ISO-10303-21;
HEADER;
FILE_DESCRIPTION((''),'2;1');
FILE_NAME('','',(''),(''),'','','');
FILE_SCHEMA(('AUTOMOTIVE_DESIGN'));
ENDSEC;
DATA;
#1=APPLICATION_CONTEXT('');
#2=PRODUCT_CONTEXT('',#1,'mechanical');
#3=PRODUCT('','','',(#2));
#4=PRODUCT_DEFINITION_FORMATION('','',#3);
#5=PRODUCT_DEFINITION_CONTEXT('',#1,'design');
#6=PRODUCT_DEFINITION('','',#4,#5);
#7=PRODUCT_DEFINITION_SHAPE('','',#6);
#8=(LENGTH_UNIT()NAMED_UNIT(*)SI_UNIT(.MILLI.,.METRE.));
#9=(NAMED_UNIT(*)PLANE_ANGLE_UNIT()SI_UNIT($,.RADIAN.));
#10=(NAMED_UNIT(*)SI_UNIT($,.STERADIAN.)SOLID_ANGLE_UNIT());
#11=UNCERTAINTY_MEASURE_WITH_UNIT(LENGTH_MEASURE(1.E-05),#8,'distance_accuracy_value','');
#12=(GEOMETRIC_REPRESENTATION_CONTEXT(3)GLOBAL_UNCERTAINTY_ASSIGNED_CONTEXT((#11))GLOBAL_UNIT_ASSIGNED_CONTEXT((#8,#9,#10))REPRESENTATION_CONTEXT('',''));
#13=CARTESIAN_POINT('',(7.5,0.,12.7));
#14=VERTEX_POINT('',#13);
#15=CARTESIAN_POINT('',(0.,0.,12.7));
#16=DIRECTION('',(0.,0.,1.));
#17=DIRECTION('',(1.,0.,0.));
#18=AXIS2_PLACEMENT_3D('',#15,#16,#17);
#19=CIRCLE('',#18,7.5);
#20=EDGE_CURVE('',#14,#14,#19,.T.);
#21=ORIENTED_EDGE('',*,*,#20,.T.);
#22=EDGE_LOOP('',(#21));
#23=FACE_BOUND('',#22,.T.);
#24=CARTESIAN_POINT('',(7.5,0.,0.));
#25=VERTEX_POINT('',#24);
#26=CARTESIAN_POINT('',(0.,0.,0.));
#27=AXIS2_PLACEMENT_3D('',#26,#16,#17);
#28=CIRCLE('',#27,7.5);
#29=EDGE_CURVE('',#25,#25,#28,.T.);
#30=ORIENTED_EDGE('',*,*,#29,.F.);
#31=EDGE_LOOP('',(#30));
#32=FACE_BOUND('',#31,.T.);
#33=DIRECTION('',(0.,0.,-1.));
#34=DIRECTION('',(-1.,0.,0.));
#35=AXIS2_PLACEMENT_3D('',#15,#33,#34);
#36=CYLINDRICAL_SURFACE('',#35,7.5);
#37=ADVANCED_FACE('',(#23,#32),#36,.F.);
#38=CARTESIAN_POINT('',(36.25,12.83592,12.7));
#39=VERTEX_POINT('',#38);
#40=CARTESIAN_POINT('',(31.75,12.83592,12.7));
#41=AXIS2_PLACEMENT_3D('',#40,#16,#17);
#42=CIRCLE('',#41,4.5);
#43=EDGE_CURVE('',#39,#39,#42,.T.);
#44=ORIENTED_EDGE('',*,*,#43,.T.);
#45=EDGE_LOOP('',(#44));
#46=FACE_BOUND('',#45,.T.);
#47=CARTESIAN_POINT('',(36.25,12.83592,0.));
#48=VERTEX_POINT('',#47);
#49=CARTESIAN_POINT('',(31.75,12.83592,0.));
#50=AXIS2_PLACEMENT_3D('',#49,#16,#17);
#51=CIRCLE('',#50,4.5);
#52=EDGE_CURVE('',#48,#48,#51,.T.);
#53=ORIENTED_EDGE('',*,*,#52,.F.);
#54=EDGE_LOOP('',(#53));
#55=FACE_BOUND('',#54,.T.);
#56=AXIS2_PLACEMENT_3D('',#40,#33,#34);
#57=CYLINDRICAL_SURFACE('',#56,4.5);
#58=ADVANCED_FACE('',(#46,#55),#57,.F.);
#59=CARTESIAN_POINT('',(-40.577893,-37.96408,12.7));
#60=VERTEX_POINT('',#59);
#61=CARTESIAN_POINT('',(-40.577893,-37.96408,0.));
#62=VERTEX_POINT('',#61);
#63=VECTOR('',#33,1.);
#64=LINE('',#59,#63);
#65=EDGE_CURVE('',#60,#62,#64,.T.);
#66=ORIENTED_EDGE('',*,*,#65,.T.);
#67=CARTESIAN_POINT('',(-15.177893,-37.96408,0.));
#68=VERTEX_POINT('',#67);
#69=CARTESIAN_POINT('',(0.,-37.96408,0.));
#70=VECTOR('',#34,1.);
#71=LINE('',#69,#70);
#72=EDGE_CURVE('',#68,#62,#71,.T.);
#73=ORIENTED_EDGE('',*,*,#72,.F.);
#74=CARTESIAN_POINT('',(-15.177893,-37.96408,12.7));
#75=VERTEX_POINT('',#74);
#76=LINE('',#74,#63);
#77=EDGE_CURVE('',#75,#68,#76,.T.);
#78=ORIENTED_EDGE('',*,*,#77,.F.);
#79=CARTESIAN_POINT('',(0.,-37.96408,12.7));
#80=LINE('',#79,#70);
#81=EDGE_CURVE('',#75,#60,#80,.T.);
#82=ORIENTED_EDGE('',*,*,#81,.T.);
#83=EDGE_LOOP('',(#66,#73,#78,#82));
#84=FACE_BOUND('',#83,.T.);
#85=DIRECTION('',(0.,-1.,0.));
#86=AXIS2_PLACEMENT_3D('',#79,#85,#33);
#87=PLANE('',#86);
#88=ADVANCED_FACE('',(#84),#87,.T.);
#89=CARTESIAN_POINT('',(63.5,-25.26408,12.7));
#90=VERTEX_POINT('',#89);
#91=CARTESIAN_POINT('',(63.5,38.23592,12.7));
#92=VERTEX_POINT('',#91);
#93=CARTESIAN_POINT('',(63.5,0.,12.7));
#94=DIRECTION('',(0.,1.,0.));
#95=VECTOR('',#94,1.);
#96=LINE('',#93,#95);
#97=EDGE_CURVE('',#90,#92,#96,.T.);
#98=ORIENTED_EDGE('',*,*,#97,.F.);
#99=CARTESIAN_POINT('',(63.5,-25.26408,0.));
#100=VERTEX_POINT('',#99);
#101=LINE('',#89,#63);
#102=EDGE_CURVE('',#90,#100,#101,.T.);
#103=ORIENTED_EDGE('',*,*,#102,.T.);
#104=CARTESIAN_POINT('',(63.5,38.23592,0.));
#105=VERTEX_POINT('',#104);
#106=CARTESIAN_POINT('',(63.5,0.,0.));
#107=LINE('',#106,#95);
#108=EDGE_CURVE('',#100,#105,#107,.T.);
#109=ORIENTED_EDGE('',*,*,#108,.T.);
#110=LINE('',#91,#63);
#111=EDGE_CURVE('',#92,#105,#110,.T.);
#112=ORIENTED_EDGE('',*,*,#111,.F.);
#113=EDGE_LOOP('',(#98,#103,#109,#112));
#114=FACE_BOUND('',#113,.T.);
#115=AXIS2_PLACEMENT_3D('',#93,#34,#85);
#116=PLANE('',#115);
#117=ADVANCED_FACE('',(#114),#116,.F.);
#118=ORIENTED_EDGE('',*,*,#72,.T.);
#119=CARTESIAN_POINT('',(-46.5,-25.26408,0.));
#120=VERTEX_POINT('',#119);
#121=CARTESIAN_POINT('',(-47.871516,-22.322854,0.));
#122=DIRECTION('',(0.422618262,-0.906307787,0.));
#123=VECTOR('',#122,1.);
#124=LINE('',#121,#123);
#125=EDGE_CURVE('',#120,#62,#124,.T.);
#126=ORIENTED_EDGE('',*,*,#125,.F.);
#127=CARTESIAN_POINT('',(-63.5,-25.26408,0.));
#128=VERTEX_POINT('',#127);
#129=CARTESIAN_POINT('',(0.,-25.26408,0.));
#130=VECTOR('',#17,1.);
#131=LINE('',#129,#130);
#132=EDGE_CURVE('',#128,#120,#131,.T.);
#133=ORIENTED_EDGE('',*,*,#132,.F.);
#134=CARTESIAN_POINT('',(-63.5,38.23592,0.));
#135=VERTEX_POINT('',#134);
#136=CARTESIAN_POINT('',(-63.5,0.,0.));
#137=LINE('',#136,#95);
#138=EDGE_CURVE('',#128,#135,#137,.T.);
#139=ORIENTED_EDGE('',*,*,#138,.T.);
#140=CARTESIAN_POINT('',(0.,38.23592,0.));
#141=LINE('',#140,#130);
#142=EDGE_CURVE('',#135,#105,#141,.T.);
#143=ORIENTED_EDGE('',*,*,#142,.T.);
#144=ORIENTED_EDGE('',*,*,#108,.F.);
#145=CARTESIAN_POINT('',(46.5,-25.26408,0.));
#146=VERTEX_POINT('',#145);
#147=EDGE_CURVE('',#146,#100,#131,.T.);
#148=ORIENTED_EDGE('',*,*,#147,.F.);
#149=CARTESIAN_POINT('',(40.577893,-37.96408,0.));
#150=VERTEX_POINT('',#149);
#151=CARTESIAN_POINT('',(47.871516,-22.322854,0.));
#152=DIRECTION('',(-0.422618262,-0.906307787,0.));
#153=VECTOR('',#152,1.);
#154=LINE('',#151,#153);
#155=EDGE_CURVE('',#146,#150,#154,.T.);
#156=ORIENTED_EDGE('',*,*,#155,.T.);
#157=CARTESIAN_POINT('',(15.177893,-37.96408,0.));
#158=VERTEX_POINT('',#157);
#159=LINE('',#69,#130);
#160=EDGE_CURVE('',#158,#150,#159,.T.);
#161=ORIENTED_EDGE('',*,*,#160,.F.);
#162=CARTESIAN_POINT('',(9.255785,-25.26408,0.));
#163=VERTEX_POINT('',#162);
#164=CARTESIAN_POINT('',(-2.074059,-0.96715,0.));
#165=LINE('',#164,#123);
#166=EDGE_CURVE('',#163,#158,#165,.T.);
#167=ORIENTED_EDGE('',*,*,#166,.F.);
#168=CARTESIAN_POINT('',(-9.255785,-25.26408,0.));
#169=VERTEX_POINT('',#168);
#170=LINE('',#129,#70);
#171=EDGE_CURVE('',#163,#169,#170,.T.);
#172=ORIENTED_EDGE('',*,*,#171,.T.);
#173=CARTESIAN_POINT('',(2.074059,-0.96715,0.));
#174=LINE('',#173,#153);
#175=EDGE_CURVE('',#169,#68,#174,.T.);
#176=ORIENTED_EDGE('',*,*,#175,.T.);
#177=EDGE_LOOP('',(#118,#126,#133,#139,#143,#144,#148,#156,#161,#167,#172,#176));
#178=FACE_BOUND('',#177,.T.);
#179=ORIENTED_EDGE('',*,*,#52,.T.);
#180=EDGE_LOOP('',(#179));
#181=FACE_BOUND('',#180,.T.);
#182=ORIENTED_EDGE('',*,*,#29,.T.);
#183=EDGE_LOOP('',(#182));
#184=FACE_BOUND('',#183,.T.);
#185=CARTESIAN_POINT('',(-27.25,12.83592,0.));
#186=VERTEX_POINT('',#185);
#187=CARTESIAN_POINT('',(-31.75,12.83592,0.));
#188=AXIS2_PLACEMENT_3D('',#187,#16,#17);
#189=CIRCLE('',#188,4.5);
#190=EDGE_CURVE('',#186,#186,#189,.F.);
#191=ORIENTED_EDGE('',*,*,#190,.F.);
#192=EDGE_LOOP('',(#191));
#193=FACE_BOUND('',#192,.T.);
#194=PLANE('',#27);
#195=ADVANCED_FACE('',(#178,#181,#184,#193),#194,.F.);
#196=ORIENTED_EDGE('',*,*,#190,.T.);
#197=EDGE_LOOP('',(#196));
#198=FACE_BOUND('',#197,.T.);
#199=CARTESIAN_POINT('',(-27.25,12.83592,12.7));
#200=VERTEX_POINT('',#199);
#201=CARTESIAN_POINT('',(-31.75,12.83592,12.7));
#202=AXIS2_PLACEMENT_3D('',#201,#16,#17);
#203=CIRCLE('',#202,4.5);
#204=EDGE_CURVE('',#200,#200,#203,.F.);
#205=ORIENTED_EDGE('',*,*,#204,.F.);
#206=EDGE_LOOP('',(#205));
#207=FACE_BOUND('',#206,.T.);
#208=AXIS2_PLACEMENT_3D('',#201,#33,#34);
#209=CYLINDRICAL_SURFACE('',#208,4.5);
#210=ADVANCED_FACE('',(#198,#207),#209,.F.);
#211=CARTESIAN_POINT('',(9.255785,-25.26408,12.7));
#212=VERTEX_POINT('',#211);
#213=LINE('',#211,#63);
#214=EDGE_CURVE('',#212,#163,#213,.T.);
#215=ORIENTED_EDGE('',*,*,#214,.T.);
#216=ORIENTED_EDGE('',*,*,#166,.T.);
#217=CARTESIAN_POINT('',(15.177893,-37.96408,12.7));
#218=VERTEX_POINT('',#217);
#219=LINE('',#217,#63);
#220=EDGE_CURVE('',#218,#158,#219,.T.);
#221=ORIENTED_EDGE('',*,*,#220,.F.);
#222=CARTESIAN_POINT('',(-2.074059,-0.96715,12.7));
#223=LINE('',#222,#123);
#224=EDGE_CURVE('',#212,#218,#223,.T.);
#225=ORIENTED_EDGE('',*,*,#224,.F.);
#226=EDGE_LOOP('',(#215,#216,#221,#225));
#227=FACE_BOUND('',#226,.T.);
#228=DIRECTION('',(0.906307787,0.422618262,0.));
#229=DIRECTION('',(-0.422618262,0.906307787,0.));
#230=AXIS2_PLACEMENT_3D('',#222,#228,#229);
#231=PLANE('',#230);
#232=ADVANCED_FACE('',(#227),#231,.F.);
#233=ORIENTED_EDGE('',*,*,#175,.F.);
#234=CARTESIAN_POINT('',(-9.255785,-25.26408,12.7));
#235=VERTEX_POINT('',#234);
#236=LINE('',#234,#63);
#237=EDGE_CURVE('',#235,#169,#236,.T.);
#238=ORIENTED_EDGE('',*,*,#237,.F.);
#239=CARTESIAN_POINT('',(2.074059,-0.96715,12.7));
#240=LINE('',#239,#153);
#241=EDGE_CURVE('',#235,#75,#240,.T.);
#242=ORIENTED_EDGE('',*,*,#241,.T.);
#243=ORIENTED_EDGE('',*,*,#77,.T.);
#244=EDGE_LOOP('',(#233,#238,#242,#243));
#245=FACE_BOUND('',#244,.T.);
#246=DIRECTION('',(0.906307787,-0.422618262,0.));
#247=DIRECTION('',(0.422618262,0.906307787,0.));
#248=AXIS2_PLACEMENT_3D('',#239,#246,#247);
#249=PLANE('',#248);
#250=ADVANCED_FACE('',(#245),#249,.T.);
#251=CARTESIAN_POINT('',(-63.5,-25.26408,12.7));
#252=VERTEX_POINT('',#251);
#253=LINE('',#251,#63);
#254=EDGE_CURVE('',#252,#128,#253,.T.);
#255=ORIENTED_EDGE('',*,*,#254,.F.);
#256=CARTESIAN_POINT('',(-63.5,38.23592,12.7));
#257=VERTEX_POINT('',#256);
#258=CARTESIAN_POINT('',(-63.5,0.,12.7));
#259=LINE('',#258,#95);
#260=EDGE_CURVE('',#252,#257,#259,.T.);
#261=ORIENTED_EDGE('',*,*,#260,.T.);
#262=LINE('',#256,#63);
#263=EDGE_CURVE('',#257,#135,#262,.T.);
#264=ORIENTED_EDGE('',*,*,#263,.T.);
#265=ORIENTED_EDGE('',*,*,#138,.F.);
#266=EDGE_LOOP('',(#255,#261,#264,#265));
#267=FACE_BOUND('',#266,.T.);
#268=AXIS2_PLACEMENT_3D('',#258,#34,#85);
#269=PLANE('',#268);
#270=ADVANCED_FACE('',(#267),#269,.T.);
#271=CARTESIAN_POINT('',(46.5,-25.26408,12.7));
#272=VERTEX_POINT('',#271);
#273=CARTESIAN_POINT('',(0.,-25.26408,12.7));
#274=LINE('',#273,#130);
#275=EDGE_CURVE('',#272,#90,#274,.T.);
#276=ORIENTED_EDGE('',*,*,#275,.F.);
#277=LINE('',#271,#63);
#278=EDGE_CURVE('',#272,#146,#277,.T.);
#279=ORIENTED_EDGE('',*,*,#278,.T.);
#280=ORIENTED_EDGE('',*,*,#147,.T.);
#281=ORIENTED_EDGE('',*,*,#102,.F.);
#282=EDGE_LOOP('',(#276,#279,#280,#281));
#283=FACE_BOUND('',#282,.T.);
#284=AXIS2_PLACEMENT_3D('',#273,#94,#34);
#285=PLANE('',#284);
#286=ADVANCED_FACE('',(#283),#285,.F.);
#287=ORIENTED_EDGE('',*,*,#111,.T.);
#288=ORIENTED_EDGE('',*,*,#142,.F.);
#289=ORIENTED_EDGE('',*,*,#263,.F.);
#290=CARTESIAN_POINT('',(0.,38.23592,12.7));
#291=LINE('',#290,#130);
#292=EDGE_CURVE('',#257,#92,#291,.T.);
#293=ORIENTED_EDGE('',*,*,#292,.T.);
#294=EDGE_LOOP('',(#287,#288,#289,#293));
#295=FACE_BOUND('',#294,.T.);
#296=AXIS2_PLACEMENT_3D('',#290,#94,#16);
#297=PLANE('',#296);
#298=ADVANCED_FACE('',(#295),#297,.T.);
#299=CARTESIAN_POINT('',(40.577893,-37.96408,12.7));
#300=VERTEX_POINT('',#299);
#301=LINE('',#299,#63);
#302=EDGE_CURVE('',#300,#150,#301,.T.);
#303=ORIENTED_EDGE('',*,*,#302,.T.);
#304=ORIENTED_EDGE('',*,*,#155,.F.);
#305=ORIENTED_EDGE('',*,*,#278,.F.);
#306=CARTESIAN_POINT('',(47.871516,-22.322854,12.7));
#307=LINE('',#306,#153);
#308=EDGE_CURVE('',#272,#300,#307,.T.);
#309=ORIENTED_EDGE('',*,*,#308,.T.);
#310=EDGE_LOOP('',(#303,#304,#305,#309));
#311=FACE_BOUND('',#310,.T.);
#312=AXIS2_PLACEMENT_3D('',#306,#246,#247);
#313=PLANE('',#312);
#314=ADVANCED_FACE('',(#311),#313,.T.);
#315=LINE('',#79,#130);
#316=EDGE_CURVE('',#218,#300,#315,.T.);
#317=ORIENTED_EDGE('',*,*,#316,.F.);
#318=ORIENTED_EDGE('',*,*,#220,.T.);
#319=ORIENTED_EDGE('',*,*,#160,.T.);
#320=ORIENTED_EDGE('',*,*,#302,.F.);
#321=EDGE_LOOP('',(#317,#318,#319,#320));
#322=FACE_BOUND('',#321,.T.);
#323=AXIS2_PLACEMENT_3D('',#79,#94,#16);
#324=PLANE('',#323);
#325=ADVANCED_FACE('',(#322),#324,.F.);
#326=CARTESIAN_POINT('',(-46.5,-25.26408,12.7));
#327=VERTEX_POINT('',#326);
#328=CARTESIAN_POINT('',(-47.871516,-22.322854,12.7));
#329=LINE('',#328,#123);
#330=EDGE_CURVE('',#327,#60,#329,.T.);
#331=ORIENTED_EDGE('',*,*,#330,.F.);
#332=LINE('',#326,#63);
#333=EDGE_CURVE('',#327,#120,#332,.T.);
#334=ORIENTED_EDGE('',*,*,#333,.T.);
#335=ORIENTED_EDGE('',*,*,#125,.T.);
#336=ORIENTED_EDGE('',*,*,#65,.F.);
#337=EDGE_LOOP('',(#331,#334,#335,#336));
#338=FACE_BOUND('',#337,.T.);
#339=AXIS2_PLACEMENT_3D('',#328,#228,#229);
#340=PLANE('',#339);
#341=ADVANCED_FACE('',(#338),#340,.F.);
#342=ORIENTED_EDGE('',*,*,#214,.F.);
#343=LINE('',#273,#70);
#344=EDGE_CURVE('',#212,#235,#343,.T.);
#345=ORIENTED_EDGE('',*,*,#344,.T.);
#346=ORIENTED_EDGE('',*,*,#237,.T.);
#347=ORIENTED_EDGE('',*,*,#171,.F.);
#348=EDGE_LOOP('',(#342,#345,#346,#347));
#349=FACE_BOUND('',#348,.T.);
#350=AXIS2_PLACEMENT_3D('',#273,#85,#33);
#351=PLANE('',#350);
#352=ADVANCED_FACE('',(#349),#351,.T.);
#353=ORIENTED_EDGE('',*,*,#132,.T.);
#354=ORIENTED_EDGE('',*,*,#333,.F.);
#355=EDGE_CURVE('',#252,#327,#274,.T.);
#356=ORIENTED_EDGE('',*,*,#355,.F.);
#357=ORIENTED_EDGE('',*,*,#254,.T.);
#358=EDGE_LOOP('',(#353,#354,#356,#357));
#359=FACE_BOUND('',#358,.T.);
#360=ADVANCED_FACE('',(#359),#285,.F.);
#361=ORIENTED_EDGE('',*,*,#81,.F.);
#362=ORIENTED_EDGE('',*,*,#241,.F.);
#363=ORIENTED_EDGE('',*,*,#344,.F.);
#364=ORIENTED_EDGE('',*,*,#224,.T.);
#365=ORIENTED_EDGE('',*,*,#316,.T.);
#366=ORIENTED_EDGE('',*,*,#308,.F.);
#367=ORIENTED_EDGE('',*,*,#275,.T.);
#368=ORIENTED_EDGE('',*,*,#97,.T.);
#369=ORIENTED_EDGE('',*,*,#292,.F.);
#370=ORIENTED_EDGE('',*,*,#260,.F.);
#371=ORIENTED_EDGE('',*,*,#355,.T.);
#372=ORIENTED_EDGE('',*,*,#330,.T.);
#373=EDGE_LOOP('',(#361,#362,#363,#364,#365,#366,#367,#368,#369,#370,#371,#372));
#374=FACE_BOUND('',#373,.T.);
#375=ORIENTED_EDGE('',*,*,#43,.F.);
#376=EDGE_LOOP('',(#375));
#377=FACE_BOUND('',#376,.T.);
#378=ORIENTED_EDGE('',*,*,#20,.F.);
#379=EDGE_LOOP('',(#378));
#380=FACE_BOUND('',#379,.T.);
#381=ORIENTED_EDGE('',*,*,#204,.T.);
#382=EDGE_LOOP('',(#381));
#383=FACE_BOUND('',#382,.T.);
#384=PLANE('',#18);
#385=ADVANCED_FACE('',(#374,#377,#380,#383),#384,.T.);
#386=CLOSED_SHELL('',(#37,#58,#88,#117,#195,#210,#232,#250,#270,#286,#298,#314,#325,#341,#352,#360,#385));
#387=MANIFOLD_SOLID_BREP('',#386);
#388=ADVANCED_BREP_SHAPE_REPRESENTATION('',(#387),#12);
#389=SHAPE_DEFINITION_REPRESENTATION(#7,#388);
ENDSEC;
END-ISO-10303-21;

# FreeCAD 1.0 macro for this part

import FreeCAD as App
import Part
import Sketcher
Q = App.Units.Quantity

doc = App.newDocument("Part")
body = doc.addObject("PartDesign::Body", "Body")

# Sketch on XY plane
sketch1 = body.newObject("Sketcher::SketchObject", "Sketch")
sketch1.AttachmentSupport = (doc.getObject("XY_Plane"), [""])
sketch1.MapMode = "FlatFace"
sketch1.addGeometry([
    Part.LineSegment(App.Vector(40.6, -38, 0), App.Vector(46.5, -25.3, 0)),  # 0
    Part.LineSegment(App.Vector(46.5, -25.3, 0), App.Vector(63.5, -25.3, 0)),  # 1
    Part.LineSegment(App.Vector(63.5, -25.3, 0), App.Vector(63.5, 38.2, 0)),  # 2
    Part.LineSegment(App.Vector(63.5, 38.2, 0), App.Vector(-63.5, 38.2, 0)),  # 3
    Part.LineSegment(App.Vector(-63.5, 38.2, 0), App.Vector(-63.5, -25.3, 0)),  # 4
    Part.LineSegment(App.Vector(-63.5, -25.3, 0), App.Vector(-46.5, -25.3, 0)),  # 5
    Part.LineSegment(App.Vector(-46.5, -25.3, 0), App.Vector(-40.6, -38, 0)),  # 6
    Part.LineSegment(App.Vector(-40.6, -38, 0), App.Vector(-15.2, -38, 0)),  # 7
    Part.LineSegment(App.Vector(-15.2, -38, 0), App.Vector(-9.3, -25.3, 0)),  # 8
    Part.LineSegment(App.Vector(-9.3, -25.3, 0), App.Vector(9.3, -25.3, 0)),  # 9
    Part.LineSegment(App.Vector(9.3, -25.3, 0), App.Vector(15.2, -38, 0)),  # 10
    Part.LineSegment(App.Vector(15.2, -38, 0), App.Vector(40.6, -38, 0)),  # 11
    Part.Circle(App.Vector(0, 0, 0), App.Vector(0, 0, 1), 7.5),  # 12
    Part.Circle(App.Vector(31.8, 12.8, 0), App.Vector(0, 0, 1), 4.5),  # 13
    Part.Circle(App.Vector(-31.8, 12.8, 0), App.Vector(0, 0, 1), 4.5),  # 14
], False)
sketch1.addConstraint([
    Sketcher.Constraint("Coincident", 0, 2, 1, 1),
    Sketcher.Constraint("Coincident", 1, 2, 2, 1),
    Sketcher.Constraint("Coincident", 2, 2, 3, 1),
    Sketcher.Constraint("Coincident", 3, 2, 4, 1),
    Sketcher.Constraint("Coincident", 4, 2, 5, 1),
    Sketcher.Constraint("Coincident", 5, 2, 6, 1),
    Sketcher.Constraint("Coincident", 6, 2, 7, 1),
    Sketcher.Constraint("Coincident", 7, 2, 8, 1),
    Sketcher.Constraint("Coincident", 8, 2, 9, 1),
    Sketcher.Constraint("Coincident", 9, 2, 10, 1),
    Sketcher.Constraint("Coincident", 10, 2, 11, 1),
    Sketcher.Constraint("Coincident", 11, 2, 0, 1),
    Sketcher.Constraint("Horizontal", 1),
    Sketcher.Constraint("Vertical", 2),
    Sketcher.Constraint("Horizontal", 3),
    Sketcher.Constraint("Vertical", 4),
    Sketcher.Constraint("Horizontal", 5),
    Sketcher.Constraint("Horizontal", 7),
    Sketcher.Constraint("Horizontal", 9),
    Sketcher.Constraint("Horizontal", 11),
    Sketcher.Constraint("Coincident", 12, 3, -1, 1),
    Sketcher.Constraint("Equal", 13, 14),
    Sketcher.Constraint("Symmetric", 13, 3, 14, 3, -2),
    Sketcher.Constraint("Symmetric", 1, 2, 4, 2, -2),
    Sketcher.Constraint("Symmetric", 7, 2, 10, 2, -2),
    Sketcher.Constraint("Parallel", 0, 8),
    Sketcher.Constraint("Parallel", 6, 10),
    Sketcher.Constraint("Horizontal", 5, 2, 8, 2),
    Sketcher.Constraint("Equal", 1, 5),
    Sketcher.Constraint("Equal", 7, 11),
    Sketcher.Constraint("DistanceX", 3, 2, 3, 1, Q("5 in")),
    Sketcher.Constraint("DistanceX", 7, 1, 7, 2, Q("1 in")),
    Sketcher.Constraint("DistanceY", 2, 1, 2, 2, Q("2.5 in")),
    Sketcher.Constraint("Angle", 0, Q("65 deg")),
    Sketcher.Constraint("DistanceY", 13, 3, 2, 2, Q("1 in")),
    Sketcher.Constraint("DistanceY", 6, 2, 14, 3, Q("2 in")),
    Sketcher.Constraint("DistanceX", 14, 3, 13, 3, Q("2.5 in")),
    Sketcher.Constraint("Diameter", 12, Q("15 mm")),
    Sketcher.Constraint("Diameter", 13, Q("9 mm")),
    Sketcher.Constraint("DistanceX", 1, 1, 1, 2, Q("17 mm")),
    Sketcher.Constraint("DistanceY", -1, 1, 13, 3, Q("12.83592 mm")),
])
pad1 = body.newObject("PartDesign::Pad", "Pad")
pad1.Profile = sketch1
pad1.Length = Q("0.5 in")

doc.recompute()
